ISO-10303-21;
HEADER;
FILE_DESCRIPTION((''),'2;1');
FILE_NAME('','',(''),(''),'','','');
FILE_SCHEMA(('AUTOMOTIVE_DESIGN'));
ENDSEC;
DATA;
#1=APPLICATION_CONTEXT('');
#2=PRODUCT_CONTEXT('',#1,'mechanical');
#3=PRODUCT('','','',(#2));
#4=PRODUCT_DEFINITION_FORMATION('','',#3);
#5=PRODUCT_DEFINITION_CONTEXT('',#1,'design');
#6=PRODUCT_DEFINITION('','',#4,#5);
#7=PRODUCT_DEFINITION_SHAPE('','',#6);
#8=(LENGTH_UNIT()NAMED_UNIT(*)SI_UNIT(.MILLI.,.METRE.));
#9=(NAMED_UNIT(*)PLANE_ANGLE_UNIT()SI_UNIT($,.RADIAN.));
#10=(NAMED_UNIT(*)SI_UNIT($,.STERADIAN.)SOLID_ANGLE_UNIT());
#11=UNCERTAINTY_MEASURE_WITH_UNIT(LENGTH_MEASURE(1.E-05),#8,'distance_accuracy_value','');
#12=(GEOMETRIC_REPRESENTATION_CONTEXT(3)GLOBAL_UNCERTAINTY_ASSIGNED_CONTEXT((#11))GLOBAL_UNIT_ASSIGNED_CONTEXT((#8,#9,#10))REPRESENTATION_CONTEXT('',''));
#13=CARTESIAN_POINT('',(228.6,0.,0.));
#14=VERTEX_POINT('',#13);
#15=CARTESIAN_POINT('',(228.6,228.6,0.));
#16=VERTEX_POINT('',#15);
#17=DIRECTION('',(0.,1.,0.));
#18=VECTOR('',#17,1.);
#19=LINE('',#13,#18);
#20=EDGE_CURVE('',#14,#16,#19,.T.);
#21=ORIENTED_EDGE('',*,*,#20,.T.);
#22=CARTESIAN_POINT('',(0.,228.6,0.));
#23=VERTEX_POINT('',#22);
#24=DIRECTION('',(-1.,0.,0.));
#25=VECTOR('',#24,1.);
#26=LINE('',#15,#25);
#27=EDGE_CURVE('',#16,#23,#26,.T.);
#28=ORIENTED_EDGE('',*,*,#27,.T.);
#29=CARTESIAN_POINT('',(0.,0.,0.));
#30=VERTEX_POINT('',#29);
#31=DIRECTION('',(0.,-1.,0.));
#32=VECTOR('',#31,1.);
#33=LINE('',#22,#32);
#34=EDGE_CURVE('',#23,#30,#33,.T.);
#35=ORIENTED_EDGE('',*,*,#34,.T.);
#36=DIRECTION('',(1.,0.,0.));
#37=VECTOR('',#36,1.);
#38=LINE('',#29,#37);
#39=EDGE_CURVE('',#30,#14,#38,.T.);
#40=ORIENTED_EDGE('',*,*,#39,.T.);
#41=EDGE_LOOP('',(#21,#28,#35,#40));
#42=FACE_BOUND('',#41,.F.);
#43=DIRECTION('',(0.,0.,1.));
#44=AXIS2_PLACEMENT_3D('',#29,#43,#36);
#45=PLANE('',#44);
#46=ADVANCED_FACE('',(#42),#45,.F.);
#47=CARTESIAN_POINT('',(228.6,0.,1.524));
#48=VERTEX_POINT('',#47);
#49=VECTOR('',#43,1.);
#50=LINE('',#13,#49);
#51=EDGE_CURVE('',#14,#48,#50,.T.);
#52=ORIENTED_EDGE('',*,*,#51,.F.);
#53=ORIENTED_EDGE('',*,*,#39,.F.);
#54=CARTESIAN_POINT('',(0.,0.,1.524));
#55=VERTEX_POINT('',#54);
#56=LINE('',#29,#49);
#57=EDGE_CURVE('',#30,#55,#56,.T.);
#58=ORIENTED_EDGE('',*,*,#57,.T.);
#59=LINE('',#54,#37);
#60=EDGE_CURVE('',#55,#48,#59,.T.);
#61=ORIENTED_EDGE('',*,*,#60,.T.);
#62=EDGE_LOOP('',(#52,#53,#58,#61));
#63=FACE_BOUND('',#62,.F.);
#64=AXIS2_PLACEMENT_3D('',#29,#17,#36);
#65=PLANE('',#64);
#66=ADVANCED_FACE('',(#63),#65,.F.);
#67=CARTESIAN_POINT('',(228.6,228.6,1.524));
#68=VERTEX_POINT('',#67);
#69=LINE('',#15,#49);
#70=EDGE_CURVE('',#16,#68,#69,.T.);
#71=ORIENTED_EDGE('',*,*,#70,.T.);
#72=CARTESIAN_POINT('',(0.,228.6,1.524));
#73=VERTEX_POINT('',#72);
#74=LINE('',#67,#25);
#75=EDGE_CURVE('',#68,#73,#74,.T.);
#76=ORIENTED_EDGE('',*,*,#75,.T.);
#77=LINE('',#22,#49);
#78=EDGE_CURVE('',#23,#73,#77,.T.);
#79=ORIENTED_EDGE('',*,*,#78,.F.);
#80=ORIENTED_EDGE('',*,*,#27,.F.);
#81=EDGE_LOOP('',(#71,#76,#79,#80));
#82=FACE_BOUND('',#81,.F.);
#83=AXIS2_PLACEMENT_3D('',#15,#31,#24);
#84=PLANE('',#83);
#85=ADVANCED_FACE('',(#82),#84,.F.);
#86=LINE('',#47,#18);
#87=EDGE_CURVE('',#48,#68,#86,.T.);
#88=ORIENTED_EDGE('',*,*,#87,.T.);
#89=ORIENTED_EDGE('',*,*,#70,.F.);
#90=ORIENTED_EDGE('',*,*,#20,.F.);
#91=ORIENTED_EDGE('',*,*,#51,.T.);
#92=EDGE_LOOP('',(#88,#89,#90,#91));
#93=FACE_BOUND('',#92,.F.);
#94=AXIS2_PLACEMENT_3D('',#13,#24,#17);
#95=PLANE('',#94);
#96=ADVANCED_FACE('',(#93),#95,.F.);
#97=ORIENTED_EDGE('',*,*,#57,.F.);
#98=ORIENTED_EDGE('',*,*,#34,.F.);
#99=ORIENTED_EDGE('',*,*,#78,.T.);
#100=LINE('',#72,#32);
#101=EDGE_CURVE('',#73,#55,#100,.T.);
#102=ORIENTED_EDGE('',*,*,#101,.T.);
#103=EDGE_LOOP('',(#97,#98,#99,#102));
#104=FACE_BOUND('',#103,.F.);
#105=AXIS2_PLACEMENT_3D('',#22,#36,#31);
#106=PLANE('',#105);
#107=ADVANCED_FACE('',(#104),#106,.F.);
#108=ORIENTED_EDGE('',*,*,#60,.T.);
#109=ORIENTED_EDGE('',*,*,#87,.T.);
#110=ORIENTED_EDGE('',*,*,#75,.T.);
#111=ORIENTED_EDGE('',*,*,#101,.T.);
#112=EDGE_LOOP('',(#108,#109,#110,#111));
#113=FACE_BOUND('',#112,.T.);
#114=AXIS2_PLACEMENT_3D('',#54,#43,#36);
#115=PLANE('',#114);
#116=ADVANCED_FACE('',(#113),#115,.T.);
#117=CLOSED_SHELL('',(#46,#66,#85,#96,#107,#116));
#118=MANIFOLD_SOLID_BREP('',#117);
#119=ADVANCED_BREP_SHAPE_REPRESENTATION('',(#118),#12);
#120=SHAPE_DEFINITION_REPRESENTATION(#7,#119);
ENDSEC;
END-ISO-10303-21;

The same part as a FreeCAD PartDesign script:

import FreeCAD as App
import Part
import Sketcher
Q = App.Units.Quantity

doc = App.newDocument("Part")
params = doc.addObject("Spreadsheet::Sheet", "Params")
for row, (alias, value) in enumerate([
    ("sketch1_width", "9 in"),
    ("pad1_length", "0.06 in"),
], start=1):
    params.set(f"A{row}", alias)
    params.set(f"B{row}", "=" + value)
    params.setAlias(f"B{row}", alias)

body = doc.addObject("PartDesign::Body", "Body")

# Sketch on XY plane
sketch1 = doc.addObject("Sketcher::SketchObject", "Sketch")
body.addObject(sketch1)
sketch1.AttachmentSupport = (doc.XY_Plane, [""])
sketch1.MapMode = "FlatFace"
sketch1.addGeometry([
    Part.LineSegment(App.Vector(0, 229, 0), App.Vector(0, 0, 0)),
    Part.LineSegment(App.Vector(0, 0, 0), App.Vector(229, 0, 0)),
    Part.LineSegment(App.Vector(229, 0, 0), App.Vector(229, 229, 0)),
    Part.LineSegment(App.Vector(229, 229, 0), App.Vector(0, 229, 0)),
], False)
sketch1.addConstraint([
    Sketcher.Constraint("Coincident", 0, 2, 1, 1),
    Sketcher.Constraint("Coincident", 1, 2, 2, 1),
    Sketcher.Constraint("Coincident", 2, 2, 3, 1),
    Sketcher.Constraint("Coincident", 3, 2, 0, 1),
    Sketcher.Constraint("Vertical", 0),
    Sketcher.Constraint("Horizontal", 1),
    Sketcher.Constraint("Vertical", 2),
    Sketcher.Constraint("Horizontal", 3),
    Sketcher.Constraint("Coincident", 0, 2, -1, 1),
    Sketcher.Constraint("Equal", 3, 0),
    Sketcher.Constraint("DistanceX", 1, 1, 1, 2, Q("9 in")),
])
sketch1.setExpression("Constraints[10]", "Params.sketch1_width")
pad1 = doc.addObject("PartDesign::Pad", "Pad")
body.addObject(pad1)
pad1.Profile = sketch1
pad1.setExpression("Length", "Params.pad1_length")

doc.recompute()
